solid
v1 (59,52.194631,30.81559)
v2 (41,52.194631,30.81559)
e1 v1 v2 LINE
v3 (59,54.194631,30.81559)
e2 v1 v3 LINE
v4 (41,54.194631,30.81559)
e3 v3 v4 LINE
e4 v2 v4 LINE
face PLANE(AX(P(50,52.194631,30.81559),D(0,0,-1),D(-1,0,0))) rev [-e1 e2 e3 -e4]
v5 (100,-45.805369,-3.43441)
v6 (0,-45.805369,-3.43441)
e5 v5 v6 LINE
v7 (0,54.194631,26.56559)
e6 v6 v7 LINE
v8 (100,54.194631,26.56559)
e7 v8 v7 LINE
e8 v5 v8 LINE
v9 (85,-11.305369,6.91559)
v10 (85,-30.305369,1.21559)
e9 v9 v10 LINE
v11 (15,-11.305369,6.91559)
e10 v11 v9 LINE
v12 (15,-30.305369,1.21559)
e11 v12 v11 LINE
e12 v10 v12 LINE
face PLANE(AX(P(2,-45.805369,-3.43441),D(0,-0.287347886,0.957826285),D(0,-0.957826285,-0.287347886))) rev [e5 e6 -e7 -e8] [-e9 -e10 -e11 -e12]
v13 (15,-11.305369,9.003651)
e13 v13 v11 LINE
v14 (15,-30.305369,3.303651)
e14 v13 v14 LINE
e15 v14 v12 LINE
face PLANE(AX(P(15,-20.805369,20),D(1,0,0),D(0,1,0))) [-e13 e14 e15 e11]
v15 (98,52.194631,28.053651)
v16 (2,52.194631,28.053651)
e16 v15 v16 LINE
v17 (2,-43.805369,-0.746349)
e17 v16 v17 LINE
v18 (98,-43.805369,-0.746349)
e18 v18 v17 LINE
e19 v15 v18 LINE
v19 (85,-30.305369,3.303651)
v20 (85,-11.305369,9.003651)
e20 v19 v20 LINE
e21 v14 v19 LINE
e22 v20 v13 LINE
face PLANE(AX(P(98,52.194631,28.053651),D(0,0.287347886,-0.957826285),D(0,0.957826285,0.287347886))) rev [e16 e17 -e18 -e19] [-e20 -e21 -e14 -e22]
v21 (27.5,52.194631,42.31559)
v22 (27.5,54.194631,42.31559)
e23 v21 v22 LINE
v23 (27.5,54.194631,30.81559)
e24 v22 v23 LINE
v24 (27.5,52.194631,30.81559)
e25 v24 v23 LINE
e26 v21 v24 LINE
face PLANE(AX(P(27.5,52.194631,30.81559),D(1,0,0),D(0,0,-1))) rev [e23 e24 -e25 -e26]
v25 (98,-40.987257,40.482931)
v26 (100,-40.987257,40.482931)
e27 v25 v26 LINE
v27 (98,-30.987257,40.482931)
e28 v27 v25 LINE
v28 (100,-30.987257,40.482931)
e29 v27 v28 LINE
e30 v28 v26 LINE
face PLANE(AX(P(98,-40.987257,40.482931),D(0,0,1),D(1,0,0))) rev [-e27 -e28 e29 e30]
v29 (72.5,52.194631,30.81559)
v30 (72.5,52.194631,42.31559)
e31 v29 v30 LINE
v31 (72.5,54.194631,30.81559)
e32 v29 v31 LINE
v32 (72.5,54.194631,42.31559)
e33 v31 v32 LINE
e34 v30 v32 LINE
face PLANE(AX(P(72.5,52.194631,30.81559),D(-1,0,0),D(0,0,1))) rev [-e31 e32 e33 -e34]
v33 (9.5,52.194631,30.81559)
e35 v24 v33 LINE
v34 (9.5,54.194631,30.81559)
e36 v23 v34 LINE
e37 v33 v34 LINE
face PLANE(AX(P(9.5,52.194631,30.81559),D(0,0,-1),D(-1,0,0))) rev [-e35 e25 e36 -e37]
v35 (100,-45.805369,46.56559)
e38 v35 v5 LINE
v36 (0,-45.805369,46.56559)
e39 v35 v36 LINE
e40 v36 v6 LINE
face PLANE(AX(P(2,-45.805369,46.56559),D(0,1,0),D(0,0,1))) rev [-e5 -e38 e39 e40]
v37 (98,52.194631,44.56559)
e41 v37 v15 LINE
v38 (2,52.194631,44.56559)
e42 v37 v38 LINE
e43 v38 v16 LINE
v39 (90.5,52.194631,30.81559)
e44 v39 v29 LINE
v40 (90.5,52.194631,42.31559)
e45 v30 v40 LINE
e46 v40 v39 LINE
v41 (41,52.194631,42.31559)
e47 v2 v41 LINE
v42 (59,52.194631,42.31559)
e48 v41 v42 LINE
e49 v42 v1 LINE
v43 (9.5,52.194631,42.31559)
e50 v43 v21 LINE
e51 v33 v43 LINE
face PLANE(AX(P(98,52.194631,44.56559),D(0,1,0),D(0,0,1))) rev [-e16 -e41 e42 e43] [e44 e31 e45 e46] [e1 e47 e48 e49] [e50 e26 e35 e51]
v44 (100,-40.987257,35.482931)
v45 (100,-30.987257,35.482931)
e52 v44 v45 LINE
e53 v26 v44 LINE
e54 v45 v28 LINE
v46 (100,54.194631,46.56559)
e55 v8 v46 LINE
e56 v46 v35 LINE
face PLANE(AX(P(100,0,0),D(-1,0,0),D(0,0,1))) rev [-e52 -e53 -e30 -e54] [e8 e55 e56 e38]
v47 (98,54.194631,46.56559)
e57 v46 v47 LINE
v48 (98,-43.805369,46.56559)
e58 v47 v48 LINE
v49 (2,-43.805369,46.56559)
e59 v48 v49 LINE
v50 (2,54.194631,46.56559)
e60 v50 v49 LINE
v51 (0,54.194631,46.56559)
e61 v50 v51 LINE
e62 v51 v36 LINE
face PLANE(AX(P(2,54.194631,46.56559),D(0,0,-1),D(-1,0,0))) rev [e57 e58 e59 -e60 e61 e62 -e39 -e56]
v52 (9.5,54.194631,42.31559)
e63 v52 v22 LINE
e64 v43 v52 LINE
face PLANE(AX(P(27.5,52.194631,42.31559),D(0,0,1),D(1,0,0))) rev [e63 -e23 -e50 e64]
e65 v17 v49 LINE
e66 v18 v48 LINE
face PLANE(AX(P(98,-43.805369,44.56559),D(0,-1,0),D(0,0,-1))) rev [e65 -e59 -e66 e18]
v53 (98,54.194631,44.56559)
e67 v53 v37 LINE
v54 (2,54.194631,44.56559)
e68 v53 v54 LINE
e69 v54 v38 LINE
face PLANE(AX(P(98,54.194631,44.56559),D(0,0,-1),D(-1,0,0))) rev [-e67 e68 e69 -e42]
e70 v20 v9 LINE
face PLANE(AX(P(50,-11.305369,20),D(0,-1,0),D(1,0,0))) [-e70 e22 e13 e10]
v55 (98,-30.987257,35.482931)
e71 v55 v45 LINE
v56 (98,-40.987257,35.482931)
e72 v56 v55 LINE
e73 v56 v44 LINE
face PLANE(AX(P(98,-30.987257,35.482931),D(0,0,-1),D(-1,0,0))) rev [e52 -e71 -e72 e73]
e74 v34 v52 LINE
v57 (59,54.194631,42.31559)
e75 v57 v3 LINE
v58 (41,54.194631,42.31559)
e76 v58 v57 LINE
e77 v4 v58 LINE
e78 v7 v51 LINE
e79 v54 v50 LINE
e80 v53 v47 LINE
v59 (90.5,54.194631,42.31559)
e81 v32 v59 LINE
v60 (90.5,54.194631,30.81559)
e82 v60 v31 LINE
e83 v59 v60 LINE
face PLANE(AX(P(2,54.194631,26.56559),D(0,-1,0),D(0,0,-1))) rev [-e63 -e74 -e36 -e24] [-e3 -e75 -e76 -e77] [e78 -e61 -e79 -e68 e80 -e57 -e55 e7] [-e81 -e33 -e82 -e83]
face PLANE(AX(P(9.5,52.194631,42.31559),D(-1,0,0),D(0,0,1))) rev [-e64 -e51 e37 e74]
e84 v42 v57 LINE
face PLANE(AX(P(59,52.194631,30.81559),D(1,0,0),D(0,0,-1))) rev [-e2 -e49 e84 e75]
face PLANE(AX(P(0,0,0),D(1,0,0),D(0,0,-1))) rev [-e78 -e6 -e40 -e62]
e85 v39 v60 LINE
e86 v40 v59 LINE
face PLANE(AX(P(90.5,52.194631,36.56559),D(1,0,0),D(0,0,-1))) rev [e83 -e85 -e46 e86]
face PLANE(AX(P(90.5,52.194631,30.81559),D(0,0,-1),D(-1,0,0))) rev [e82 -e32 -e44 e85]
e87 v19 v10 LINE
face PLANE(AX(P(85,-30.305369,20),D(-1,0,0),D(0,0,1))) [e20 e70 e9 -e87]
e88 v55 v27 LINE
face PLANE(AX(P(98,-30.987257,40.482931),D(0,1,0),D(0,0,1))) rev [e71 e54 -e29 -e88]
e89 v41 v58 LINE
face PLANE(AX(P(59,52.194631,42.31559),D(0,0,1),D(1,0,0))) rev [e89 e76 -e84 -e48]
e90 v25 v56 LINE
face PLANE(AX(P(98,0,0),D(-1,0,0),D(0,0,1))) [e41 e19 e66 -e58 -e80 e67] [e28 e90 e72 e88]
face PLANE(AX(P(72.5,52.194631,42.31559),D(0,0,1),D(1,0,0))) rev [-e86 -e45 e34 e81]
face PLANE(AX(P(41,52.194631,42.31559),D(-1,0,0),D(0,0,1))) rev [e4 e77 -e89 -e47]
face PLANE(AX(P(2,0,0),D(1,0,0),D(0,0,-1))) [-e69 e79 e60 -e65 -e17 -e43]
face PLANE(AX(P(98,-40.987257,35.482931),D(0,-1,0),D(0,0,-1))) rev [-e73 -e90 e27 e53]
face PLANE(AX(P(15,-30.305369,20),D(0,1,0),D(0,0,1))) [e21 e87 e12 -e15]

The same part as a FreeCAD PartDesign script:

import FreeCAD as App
import Part
import Sketcher
from FreeCAD import Vector


def add_polygon(sketch, points):
    """Adds a closed chain of lines whose ends are joined by coincident constraints."""
    first, n = sketch.GeometryCount, len(points)
    for a, b in zip(points, points[1:] + points[:1]):
        sketch.addGeometry(Part.LineSegment(App.Vector(*a, 0), App.Vector(*b, 0)), False)
    for i in range(n):
        sketch.addConstraint(Sketcher.Constraint("Coincident", first + i, 2, first + (i + 1) % n, 1))

doc = App.newDocument("Part")
body = doc.addObject("PartDesign::Body", "Body")

# Sketch on YZ plane
sketch1 = body.newObject("Sketcher::SketchObject", "Sketch")
sketch1.AttachmentSupport = (doc.getObject("YZ_Plane"), [""])
sketch1.MapMode = "FlatFace"
add_polygon(sketch1, [(-46, 47), (-46, -3), (54, 27), (54, 47)])  # lines 0-3
sketch1.addConstraint(Sketcher.Constraint("Vertical", 0))
sketch1.addConstraint(Sketcher.Constraint("Vertical", 2))
sketch1.addConstraint(Sketcher.Constraint("Horizontal", 3))
sketch1.addConstraint(Sketcher.Constraint("DistanceX", 3, 2, 3, 1, 100.0))
sketch1.addConstraint(Sketcher.Constraint("DistanceY", 0, 2, 0, 1, 50.0))
sketch1.addConstraint(Sketcher.Constraint("DistanceY", 2, 1, 2, 2, 20.0))
sketch1.addConstraint(Sketcher.Constraint("DistanceX", 0, 2, -1, 1, 45.805369))
sketch1.addConstraint(Sketcher.Constraint("DistanceY", 0, 2, -1, 1, 3.43441))
pad1 = body.newObject("PartDesign::Pad", "Pad")
pad1.Profile = sketch1
pad1.Length = 2

# Sketch on YZ plane
sketch2 = body.newObject("Sketcher::SketchObject", "Sketch001")
sketch2.AttachmentSupport = (doc.getObject("YZ_Plane"), [""])
sketch2.MapMode = "FlatFace"
sketch2.AttachmentOffset = App.Placement(Vector(0, 0, 2), App.Rotation())
add_polygon(sketch2, [(-45.8, -3.4), (54.2, 26.6), (54.2, 44.6), (52.2, 44.6), (52.2, 28.1), (-43.8, -0.7), (-43.8, 46.6), (-45.8, 46.6)])  # lines 0-7
sketch2.addConstraint(Sketcher.Constraint("Vertical", 1))
sketch2.addConstraint(Sketcher.Constraint("Horizontal", 2))
sketch2.addConstraint(Sketcher.Constraint("Vertical", 3))
sketch2.addConstraint(Sketcher.Constraint("Vertical", 5))
sketch2.addConstraint(Sketcher.Constraint("Horizontal", 6))
sketch2.addConstraint(Sketcher.Constraint("Vertical", 7))
sketch2.addConstraint(Sketcher.Constraint("Parallel", 0, 4))
sketch2.addConstraint(Sketcher.Constraint("Equal", 2, 6))
sketch2.addConstraint(Sketcher.Constraint("DistanceX", 2, 2, 2, 1, 2.0))
sketch2.addConstraint(Sketcher.Constraint("DistanceY", 1, 1, 1, 2, 18.0))
sketch2.addConstraint(Sketcher.Constraint("DistanceY", 7, 2, 7, 1, 50.0))
sketch2.addConstraint(Sketcher.Constraint("DistanceX", 4, 2, 3, 2, 96.0))
sketch2.addConstraint(Sketcher.Constraint("DistanceY", 2, 2, 5, 2, 2.0))
sketch2.addConstraint(Sketcher.Constraint("DistanceY", 3, 2, 3, 1, 16.511939))
sketch2.addConstraint(Sketcher.Constraint("DistanceX", -1, 1, 0, 2, 54.194631))
sketch2.addConstraint(Sketcher.Constraint("DistanceY", -1, 1, 0, 2, 26.56559))
pad2 = body.newObject("PartDesign::Pad", "Pad001")
pad2.Profile = sketch2
pad2.Length = 96

# Sketch on YZ plane
sketch3 = body.newObject("Sketcher::SketchObject", "Sketch002")
sketch3.AttachmentSupport = (doc.getObject("YZ_Plane"), [""])
sketch3.MapMode = "FlatFace"
sketch3.AttachmentOffset = App.Placement(Vector(0, 0, 98), App.Rotation())
add_polygon(sketch3, [(54, 27), (54, 47), (-46, 47), (-46, -3)])  # lines 0-3
sketch3.addConstraint(Sketcher.Constraint("Vertical", 0))
sketch3.addConstraint(Sketcher.Constraint("Horizontal", 1))
sketch3.addConstraint(Sketcher.Constraint("Vertical", 2))
sketch3.addConstraint(Sketcher.Constraint("DistanceX", 1, 2, 1, 1, 100.0))
sketch3.addConstraint(Sketcher.Constraint("DistanceY", 0, 1, 0, 2, 20.0))
sketch3.addConstraint(Sketcher.Constraint("DistanceY", 2, 2, 2, 1, 50.0))
sketch3.addConstraint(Sketcher.Constraint("DistanceX", -1, 1, 0, 2, 54.194631))
sketch3.addConstraint(Sketcher.Constraint("DistanceY", -1, 1, 0, 2, 46.56559))
pad3 = body.newObject("PartDesign::Pad", "Pad002")
pad3.Profile = sketch3
pad3.Length = 2

# Sketch on XZ plane
sketch4 = body.newObject("Sketcher::SketchObject", "Sketch003")
sketch4.AttachmentSupport = (doc.getObject("XZ_Plane"), [""])
sketch4.MapMode = "FlatFace"
sketch4.AttachmentOffset = App.Placement(Vector(0, 0, -54.194631), App.Rotation())
add_polygon(sketch4, [(59, 31), (41, 31), (41, 42), (59, 42)])  # lines 0-3
add_polygon(sketch4, [(72, 31), (72, 42), (90, 42), (90, 31)])  # lines 4-7
add_polygon(sketch4, [(28, 42), (28, 31), (10, 31), (10, 42)])  # lines 8-11
sketch4.addConstraint(Sketcher.Constraint("Horizontal", 0))
sketch4.addConstraint(Sketcher.Constraint("Vertical", 1))
sketch4.addConstraint(Sketcher.Constraint("Horizontal", 2))
sketch4.addConstraint(Sketcher.Constraint("Vertical", 3))
sketch4.addConstraint(Sketcher.Constraint("Vertical", 4))
sketch4.addConstraint(Sketcher.Constraint("Horizontal", 5))
sketch4.addConstraint(Sketcher.Constraint("Vertical", 6))
sketch4.addConstraint(Sketcher.Constraint("Horizontal", 7))
sketch4.addConstraint(Sketcher.Constraint("Vertical", 8))
sketch4.addConstraint(Sketcher.Constraint("Horizontal", 9))
sketch4.addConstraint(Sketcher.Constraint("Vertical", 10))
sketch4.addConstraint(Sketcher.Constraint("Horizontal", 11))
sketch4.addConstraint(Sketcher.Constraint("Horizontal", 2, 2, 4, 2))
sketch4.addConstraint(Sketcher.Constraint("Horizontal", 3, 2, 6, 2))
sketch4.addConstraint(Sketcher.Constraint("Horizontal", 7, 2, 8, 2))
sketch4.addConstraint(Sketcher.Constraint("Horizontal", 5, 2, 10, 2))
sketch4.addConstraint(Sketcher.Constraint("Equal", 2, 5))
sketch4.addConstraint(Sketcher.Constraint("Equal", 7, 9))
sketch4.addConstraint(Sketcher.Constraint("DistanceX", 0, 2, 0, 1, 18.0))
sketch4.addConstraint(Sketcher.Constraint("DistanceY", 1, 1, 1, 2, 11.5))
sketch4.addConstraint(Sketcher.Constraint("DistanceX", -1, 1, 0, 2, 41.0))
sketch4.addConstraint(Sketcher.Constraint("DistanceX", 8, 2, 7, 2, 45.0))
sketch4.addConstraint(Sketcher.Constraint("DistanceX", -1, 1, 4, 2, 72.5))
sketch4.addConstraint(Sketcher.Constraint("DistanceY", -1, 1, 0, 2, 30.81559))
pocket1 = body.newObject("PartDesign::Pocket", "Pocket")
pocket1.Profile = sketch4
pocket1.Length = 2
pocket1.Reversed = True

# Sketch on XY plane
sketch5 = body.newObject("Sketcher::SketchObject", "Sketch004")
sketch5.AttachmentSupport = (doc.getObject("XY_Plane"), [""])
sketch5.MapMode = "FlatFace"
add_polygon(sketch5, [(85, -11), (15, -11), (15, -30), (85, -30)])  # lines 0-3
sketch5.addConstraint(Sketcher.Constraint("Horizontal", 0))
sketch5.addConstraint(Sketcher.Constraint("Vertical", 1))
sketch5.addConstraint(Sketcher.Constraint("Horizontal", 2))
sketch5.addConstraint(Sketcher.Constraint("Vertical", 3))
sketch5.addConstraint(Sketcher.Constraint("DistanceX", 0, 2, 0, 1, 70.0))
sketch5.addConstraint(Sketcher.Constraint("DistanceY", 1, 2, 1, 1, 19.0))
sketch5.addConstraint(Sketcher.Constraint("DistanceX", -1, 1, 0, 2, 15.0))
sketch5.addConstraint(Sketcher.Constraint("DistanceY", 0, 2, -1, 1, 11.305369))
pocket2 = body.newObject("PartDesign::Pocket", "Pocket001")
pocket2.Profile = sketch5
pocket2.Type = "ThroughAll"
pocket2.Midplane = True

# Sketch on YZ plane
sketch6 = body.newObject("Sketcher::SketchObject", "Sketch005")
sketch6.AttachmentSupport = (doc.getObject("YZ_Plane"), [""])
sketch6.MapMode = "FlatFace"
sketch6.AttachmentOffset = App.Placement(Vector(0, 0, 100), App.Rotation())
add_polygon(sketch6, [(-31, 40), (-41, 40), (-41, 35), (-31, 35)])  # lines 0-3
sketch6.addConstraint(Sketcher.Constraint("Horizontal", 0))
sketch6.addConstraint(Sketcher.Constraint("Vertical", 1))
sketch6.addConstraint(Sketcher.Constraint("Horizontal", 2))
sketch6.addConstraint(Sketcher.Constraint("Vertical", 3))
sketch6.addConstraint(Sketcher.Constraint("DistanceX", 0, 2, 0, 1, 10.0))
sketch6.addConstraint(Sketcher.Constraint("DistanceY", 1, 2, 1, 1, 5.0))
sketch6.addConstraint(Sketcher.Constraint("DistanceY", -1, 1, 0, 2, 40.482931))
sketch6.addConstraint(Sketcher.Constraint("DistanceX", 0, 2, -1, 1, 40.987257))
pocket3 = body.newObject("PartDesign::Pocket", "Pocket002")
pocket3.Profile = sketch6
pocket3.Length = 2

doc.recompute()
